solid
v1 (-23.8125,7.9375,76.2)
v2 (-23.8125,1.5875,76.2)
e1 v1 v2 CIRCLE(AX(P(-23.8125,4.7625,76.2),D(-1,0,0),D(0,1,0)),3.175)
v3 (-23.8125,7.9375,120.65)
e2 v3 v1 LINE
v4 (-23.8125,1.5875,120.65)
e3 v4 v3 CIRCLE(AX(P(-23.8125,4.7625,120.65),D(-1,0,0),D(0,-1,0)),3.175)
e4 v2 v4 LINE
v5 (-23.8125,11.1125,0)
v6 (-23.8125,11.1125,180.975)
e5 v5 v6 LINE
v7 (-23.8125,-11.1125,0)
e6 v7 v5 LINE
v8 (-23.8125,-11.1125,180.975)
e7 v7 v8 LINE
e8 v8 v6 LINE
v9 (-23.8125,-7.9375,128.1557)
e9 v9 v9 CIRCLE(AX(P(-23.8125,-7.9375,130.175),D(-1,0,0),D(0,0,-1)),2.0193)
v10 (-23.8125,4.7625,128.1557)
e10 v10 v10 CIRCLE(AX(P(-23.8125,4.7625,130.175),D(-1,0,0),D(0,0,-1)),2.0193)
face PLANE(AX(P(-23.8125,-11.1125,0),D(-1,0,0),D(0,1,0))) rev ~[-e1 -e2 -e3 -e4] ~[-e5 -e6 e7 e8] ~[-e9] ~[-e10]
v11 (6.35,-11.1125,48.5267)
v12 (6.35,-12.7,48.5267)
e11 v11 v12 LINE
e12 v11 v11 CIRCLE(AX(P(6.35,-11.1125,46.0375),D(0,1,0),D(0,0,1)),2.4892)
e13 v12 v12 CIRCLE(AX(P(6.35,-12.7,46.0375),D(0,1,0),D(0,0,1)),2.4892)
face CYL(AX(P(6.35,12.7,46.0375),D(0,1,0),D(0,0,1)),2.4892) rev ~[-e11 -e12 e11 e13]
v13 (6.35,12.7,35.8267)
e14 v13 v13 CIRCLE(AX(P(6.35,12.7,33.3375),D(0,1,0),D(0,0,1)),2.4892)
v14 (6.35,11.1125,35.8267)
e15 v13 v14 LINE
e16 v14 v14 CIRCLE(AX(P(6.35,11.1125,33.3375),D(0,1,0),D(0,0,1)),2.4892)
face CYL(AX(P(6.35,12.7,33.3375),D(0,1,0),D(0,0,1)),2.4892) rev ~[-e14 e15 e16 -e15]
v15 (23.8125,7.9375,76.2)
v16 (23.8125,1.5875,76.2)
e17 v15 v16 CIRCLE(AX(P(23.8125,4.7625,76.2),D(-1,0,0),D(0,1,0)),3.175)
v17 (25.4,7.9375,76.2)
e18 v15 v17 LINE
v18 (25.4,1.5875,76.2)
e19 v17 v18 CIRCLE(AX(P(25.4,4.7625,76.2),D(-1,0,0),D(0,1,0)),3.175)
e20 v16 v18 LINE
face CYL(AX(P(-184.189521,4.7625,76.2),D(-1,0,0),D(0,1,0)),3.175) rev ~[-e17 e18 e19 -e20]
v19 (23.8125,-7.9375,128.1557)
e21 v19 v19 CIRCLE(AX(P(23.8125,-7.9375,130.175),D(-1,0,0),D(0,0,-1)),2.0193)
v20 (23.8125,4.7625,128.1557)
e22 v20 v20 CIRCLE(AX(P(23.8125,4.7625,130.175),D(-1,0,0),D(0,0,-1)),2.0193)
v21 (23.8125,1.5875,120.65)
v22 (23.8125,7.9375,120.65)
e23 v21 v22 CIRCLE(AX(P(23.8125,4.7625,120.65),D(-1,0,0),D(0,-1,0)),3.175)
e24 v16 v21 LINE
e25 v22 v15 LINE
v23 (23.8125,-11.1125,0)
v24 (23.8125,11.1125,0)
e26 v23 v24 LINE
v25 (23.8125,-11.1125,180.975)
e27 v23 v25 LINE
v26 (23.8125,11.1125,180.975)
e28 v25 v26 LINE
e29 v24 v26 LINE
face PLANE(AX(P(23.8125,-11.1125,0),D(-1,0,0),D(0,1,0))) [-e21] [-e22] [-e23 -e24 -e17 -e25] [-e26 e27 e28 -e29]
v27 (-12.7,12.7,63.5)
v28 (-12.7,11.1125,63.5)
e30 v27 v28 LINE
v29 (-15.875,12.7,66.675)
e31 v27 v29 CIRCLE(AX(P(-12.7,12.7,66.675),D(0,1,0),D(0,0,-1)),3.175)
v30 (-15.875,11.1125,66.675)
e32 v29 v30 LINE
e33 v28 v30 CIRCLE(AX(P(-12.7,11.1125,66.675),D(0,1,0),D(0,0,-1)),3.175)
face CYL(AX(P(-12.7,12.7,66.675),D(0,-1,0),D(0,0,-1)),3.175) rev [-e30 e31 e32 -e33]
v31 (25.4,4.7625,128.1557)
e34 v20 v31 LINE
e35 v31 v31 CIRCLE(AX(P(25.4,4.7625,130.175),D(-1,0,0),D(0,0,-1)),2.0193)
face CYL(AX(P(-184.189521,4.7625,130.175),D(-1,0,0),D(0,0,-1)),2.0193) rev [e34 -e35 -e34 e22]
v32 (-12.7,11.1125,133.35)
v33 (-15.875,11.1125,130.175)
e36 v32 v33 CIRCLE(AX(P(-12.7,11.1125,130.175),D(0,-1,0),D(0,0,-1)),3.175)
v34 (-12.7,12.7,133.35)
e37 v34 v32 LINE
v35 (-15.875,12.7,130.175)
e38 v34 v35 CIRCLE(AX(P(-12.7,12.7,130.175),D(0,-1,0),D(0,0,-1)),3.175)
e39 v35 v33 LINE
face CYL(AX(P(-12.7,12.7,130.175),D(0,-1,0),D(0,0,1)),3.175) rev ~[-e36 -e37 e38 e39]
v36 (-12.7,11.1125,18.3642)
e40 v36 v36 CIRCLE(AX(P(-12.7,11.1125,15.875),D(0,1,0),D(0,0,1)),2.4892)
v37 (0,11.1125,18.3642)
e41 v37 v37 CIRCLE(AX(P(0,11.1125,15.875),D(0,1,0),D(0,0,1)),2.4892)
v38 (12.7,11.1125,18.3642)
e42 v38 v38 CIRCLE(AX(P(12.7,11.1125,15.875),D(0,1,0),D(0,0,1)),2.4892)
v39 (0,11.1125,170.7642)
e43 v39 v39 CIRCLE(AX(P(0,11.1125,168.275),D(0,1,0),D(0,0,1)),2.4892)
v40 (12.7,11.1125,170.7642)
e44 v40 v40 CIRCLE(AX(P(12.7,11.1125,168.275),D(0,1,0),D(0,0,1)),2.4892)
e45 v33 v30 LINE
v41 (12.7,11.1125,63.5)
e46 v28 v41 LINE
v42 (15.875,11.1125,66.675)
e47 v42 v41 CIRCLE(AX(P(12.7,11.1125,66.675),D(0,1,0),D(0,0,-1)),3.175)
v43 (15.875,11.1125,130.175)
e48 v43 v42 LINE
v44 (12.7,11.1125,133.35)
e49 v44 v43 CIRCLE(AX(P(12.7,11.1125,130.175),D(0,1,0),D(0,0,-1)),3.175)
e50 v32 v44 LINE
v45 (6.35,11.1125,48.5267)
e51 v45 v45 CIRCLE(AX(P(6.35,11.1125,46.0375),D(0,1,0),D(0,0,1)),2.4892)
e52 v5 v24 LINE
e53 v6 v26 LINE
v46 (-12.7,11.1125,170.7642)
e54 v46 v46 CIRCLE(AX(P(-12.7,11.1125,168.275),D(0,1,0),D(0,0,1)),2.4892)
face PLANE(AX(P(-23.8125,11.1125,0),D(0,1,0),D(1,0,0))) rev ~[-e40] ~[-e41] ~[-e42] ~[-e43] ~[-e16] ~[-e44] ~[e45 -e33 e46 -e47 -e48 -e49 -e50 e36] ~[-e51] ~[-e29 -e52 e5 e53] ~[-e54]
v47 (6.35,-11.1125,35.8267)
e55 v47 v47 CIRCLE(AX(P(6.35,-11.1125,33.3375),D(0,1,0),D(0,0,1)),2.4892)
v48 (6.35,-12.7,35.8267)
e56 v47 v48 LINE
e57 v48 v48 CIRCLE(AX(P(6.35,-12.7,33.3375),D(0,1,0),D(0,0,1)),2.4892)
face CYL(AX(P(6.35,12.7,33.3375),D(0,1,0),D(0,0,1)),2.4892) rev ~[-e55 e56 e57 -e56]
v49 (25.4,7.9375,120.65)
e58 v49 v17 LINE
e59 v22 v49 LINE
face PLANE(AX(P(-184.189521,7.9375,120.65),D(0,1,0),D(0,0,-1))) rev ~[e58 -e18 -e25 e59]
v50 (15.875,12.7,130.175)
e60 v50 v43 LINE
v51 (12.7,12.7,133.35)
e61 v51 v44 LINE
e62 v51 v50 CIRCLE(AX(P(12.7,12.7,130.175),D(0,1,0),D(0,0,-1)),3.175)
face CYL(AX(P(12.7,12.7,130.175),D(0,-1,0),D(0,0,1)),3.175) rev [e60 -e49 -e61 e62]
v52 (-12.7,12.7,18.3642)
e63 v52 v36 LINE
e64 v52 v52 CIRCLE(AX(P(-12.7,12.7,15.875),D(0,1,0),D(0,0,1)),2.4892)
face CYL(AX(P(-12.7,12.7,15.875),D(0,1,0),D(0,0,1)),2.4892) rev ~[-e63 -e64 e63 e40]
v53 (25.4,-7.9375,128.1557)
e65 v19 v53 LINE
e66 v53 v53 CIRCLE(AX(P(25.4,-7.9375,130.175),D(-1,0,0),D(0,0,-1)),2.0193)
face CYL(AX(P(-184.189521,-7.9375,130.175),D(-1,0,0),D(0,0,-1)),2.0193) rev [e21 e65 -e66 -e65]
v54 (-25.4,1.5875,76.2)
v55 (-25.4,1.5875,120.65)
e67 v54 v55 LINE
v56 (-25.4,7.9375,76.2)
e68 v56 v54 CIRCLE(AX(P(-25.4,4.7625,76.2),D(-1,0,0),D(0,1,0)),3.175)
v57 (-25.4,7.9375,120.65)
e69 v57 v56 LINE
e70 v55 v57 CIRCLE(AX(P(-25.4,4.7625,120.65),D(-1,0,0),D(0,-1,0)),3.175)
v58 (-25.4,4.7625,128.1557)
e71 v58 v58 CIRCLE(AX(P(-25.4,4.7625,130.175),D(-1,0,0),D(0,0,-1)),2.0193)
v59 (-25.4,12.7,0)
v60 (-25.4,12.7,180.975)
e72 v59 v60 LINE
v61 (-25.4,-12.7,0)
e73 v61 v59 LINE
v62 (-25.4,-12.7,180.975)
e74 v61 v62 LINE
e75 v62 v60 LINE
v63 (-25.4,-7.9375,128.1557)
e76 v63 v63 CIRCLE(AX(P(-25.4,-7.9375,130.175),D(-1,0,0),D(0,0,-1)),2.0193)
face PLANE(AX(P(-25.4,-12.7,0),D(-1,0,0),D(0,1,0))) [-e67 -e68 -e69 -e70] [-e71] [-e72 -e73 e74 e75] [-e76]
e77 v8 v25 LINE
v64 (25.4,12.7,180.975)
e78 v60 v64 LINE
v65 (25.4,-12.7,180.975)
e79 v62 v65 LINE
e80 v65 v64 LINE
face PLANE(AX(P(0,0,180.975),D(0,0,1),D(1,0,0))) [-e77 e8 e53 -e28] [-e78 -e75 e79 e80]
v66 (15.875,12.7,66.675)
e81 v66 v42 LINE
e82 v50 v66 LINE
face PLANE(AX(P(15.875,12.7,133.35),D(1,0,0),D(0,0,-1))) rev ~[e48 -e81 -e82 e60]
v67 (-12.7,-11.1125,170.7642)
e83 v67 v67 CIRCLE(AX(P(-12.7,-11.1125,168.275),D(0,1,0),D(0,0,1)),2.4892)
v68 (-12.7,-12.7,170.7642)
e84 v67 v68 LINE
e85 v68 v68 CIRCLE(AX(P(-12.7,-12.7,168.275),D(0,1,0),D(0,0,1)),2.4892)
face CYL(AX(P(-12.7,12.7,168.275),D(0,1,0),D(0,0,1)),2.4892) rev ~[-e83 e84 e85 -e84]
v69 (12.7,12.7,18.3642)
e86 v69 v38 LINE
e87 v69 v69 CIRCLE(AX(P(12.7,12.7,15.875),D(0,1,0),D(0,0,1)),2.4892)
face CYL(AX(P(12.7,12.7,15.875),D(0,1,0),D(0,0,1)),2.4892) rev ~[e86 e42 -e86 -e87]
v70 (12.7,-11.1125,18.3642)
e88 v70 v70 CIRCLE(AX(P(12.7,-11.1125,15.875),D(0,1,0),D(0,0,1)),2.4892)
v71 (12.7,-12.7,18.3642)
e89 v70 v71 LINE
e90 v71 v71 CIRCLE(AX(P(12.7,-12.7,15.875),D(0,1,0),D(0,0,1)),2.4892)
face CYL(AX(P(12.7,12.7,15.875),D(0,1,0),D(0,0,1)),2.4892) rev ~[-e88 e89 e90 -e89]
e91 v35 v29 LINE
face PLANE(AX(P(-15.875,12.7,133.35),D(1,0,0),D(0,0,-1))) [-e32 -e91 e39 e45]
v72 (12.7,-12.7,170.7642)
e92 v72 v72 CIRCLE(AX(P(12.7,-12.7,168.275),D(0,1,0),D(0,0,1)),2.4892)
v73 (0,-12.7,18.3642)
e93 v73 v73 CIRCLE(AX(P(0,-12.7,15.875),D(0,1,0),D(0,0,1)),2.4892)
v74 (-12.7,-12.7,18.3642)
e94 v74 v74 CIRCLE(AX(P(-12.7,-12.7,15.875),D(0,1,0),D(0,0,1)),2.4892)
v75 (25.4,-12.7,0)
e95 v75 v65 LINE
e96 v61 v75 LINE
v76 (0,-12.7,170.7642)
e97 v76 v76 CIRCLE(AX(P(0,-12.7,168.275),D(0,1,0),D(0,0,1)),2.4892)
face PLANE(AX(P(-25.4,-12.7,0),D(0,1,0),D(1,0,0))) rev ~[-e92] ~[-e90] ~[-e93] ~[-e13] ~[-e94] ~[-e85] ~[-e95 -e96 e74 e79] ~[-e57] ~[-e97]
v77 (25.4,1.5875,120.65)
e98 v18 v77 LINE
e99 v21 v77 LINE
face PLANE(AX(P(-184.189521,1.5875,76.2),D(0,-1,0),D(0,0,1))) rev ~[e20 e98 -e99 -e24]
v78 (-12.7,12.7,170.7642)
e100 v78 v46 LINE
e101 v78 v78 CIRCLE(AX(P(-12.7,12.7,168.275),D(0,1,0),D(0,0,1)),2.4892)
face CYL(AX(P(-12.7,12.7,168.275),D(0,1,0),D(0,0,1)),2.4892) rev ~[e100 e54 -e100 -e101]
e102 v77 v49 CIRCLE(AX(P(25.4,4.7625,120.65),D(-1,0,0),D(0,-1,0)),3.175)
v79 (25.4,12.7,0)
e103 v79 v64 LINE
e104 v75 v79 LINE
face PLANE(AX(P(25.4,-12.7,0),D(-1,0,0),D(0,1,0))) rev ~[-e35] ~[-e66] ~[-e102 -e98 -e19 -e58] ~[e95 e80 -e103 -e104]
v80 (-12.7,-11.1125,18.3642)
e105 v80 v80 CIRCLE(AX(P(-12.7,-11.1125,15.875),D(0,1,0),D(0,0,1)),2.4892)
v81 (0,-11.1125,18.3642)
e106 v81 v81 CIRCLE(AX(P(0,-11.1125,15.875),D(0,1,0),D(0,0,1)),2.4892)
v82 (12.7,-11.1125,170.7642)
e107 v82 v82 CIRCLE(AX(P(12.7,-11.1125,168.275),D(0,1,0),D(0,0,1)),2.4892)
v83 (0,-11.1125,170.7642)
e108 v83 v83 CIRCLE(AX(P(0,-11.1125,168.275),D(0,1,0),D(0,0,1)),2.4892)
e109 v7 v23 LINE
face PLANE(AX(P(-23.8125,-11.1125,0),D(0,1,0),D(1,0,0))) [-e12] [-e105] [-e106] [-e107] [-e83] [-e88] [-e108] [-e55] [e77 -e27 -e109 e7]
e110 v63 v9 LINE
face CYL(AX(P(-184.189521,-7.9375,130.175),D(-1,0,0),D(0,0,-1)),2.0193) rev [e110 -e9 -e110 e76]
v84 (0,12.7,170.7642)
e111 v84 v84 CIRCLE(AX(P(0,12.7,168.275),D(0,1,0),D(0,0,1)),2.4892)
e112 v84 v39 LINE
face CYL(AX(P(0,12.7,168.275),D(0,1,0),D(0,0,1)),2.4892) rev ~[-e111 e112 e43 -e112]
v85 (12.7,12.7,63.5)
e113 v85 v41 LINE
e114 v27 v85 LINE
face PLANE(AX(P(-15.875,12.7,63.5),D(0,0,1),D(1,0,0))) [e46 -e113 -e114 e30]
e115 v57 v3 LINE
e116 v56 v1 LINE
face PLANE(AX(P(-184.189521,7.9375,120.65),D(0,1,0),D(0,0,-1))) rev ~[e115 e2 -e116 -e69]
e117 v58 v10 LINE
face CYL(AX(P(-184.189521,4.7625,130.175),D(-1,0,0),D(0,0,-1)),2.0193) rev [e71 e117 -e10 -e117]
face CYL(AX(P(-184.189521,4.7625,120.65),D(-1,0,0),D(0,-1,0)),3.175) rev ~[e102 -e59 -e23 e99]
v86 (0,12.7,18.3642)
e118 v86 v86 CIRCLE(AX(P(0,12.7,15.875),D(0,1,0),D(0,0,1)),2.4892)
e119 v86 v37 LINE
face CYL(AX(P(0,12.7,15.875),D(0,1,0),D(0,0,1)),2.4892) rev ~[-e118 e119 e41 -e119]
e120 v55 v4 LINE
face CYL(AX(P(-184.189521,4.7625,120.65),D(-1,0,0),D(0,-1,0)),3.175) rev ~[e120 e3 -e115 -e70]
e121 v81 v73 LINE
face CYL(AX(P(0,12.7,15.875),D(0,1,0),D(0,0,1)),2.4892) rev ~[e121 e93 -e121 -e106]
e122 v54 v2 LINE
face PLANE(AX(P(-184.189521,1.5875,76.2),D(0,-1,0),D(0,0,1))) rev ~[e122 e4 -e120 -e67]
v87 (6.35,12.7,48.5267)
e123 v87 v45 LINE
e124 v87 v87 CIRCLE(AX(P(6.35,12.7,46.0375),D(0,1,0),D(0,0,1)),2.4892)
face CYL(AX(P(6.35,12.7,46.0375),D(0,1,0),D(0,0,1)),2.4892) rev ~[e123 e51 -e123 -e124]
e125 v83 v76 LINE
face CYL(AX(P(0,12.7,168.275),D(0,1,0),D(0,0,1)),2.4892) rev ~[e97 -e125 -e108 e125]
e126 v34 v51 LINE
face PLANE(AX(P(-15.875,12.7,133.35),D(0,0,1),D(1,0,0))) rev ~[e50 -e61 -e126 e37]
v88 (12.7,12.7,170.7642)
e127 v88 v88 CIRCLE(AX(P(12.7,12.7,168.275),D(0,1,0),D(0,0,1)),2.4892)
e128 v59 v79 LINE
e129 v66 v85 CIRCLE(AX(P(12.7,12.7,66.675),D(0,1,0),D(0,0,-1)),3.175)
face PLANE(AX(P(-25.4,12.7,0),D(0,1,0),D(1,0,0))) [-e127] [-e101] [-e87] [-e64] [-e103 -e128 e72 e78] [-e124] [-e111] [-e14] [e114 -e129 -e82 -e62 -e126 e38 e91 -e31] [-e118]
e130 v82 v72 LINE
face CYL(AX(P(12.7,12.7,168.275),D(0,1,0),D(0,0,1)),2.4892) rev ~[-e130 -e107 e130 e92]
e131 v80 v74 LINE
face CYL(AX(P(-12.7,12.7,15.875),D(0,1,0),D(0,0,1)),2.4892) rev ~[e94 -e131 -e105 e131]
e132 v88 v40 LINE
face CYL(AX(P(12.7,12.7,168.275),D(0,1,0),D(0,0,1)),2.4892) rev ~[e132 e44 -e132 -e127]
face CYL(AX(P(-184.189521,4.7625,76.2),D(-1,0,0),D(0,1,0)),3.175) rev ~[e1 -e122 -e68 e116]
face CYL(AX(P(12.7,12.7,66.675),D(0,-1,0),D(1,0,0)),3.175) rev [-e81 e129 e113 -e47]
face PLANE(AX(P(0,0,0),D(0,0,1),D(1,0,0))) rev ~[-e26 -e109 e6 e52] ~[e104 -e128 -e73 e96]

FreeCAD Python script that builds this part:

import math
import FreeCAD as App
import Part
import Sketcher

V = App.Vector
Q = App.Units.Quantity


def edges_at(feature, points):
    """Names of the edges that pass closest to the given points."""
    edges = feature.Shape.Edges
    near = lambda p: min(range(len(edges)), key=lambda i: edges[i].distToShape(Part.Vertex(*p))[0])
    return sorted({f"Edge{near(p) + 1}" for p in points})


def add_polygon(sketch, points):
    """Adds a closed chain of lines whose ends are joined by coincident constraints."""
    first, n = sketch.GeometryCount, len(points)
    for a, b in zip(points, points[1:] + points[:1]):
        sketch.addGeometry(Part.LineSegment(App.Vector(*a, 0), App.Vector(*b, 0)), False)
    for i in range(n):
        sketch.addConstraint(Sketcher.Constraint("Coincident", first + i, 2, first + (i + 1) % n, 1))

doc = App.newDocument("Part")
body = doc.addObject("PartDesign::Body", "Body")

# Sketch on XY plane
sketch1 = body.newObject("Sketcher::SketchObject", "Sketch")
sketch1.AttachmentSupport = (doc.getObject("XY_Plane"), [""])
sketch1.MapMode = "FlatFace"
add_polygon(sketch1, [(-25.4, 12.7), (-25.4, -12.7), (25.4, -12.7), (25.4, 12.7)])  # lines 0-3
add_polygon(sketch1, [(23.8125, -11.1125), (-23.8125, -11.1125), (-23.8125, 11.1125), (23.8125, 11.1125)])  # lines 4-7
sketch1.addConstraint(Sketcher.Constraint("Vertical", 0))
sketch1.addConstraint(Sketcher.Constraint("Horizontal", 1))
sketch1.addConstraint(Sketcher.Constraint("Vertical", 2))
sketch1.addConstraint(Sketcher.Constraint("Horizontal", 3))
sketch1.addConstraint(Sketcher.Constraint("Horizontal", 4))
sketch1.addConstraint(Sketcher.Constraint("Vertical", 5))
sketch1.addConstraint(Sketcher.Constraint("Horizontal", 6))
sketch1.addConstraint(Sketcher.Constraint("Vertical", 7))
sketch1.addConstraint(Sketcher.Constraint("Symmetric", 0, 2, 2, 2, -1, 1))
sketch1.addConstraint(Sketcher.Constraint("Symmetric", 4, 2, 6, 2, -1, 1))
sketch1.addConstraint(Sketcher.Constraint("DistanceX", 1, 1, 1, 2, Q("2 in")))
sketch1.addConstraint(Sketcher.Constraint("DistanceY", 0, 2, 0, 1, Q("1 in")))
sketch1.addConstraint(Sketcher.Constraint("DistanceX", 4, 2, 4, 1, Q("1.875 in")))
sketch1.addConstraint(Sketcher.Constraint("DistanceY", 5, 1, 5, 2, Q("0.875 in")))
pad1 = body.newObject("PartDesign::Pad", "Pad")
pad1.Profile = sketch1
pad1.Length = Q("7.125 in")

# Sketch on XZ plane
sketch2 = body.newObject("Sketcher::SketchObject", "Sketch001")
sketch2.AttachmentSupport = (doc.getObject("XZ_Plane"), [""])
sketch2.MapMode = "FlatFace"
sketch2.AttachmentOffset = App.Placement(V(0, 0, -0.5 * 25.4), App.Rotation())
sketch2.addGeometry(Part.Circle(V(-12.7, 15.875, 0), V(0, 0, 1), 2.4892), False)
sketch2.addGeometry(Part.Circle(V(0, 15.875, 0), V(0, 0, 1), 2.4892), False)
sketch2.addGeometry(Part.Circle(V(12.7, 15.875, 0), V(0, 0, 1), 2.4892), False)
sketch2.addGeometry(Part.Circle(V(-12.7, 168.275, 0), V(0, 0, 1), 2.4892), False)
sketch2.addGeometry(Part.Circle(V(0, 168.275, 0), V(0, 0, 1), 2.4892), False)
sketch2.addGeometry(Part.Circle(V(12.7, 168.275, 0), V(0, 0, 1), 2.4892), False)
sketch2.addGeometry(Part.Circle(V(6.35, 33.3375, 0), V(0, 0, 1), 2.4892), False)
sketch2.addGeometry(Part.Circle(V(6.35, 46.0375, 0), V(0, 0, 1), 2.4892), False)
sketch2.addConstraint(Sketcher.Constraint("Equal", 0, 1))
sketch2.addConstraint(Sketcher.Constraint("Equal", 1, 2))
sketch2.addConstraint(Sketcher.Constraint("Equal", 2, 3))
sketch2.addConstraint(Sketcher.Constraint("Equal", 3, 4))
sketch2.addConstraint(Sketcher.Constraint("Equal", 4, 5))
sketch2.addConstraint(Sketcher.Constraint("Equal", 5, 6))
sketch2.addConstraint(Sketcher.Constraint("Equal", 6, 7))
sketch2.addConstraint(Sketcher.Constraint("Symmetric", 0, 3, 2, 3, -2))
sketch2.addConstraint(Sketcher.Constraint("Symmetric", 3, 3, 5, 3, -2))
sketch2.addConstraint(Sketcher.Constraint("PointOnObject", 1, 3, -2))
sketch2.addConstraint(Sketcher.Constraint("PointOnObject", 4, 3, -2))
sketch2.addConstraint(Sketcher.Constraint("Horizontal", 0, 3, 1, 3))
sketch2.addConstraint(Sketcher.Constraint("Horizontal", 3, 3, 4, 3))
sketch2.addConstraint(Sketcher.Constraint("Vertical", 0, 3, 3, 3))
sketch2.addConstraint(Sketcher.Constraint("Vertical", 6, 3, 7, 3))
sketch2.addConstraint(Sketcher.Constraint("Diameter", 0, Q("0.196 in")))
sketch2.addConstraint(Sketcher.Constraint("DistanceX", 0, 3, 2, 3, Q("1 in")))
sketch2.addConstraint(Sketcher.Constraint("DistanceY", 0, 3, 3, 3, Q("6 in")))
sketch2.addConstraint(Sketcher.Constraint("DistanceY", 6, 3, 7, 3, Q("0.5 in")))
sketch2.addConstraint(Sketcher.Constraint("DistanceX", -1, 1, 6, 3, Q("0.25 in")))
sketch2.addConstraint(Sketcher.Constraint("DistanceY", -1, 1, 0, 3, Q("0.625 in")))
sketch2.addConstraint(Sketcher.Constraint("DistanceY", -1, 1, 6, 3, Q("1.3125 in")))
pocket1 = body.newObject("PartDesign::Pocket", "Pocket")
pocket1.Profile = sketch2
pocket1.Type = "ThroughAll"
pocket1.Reversed = True

# Sketch on XZ plane
sketch3 = body.newObject("Sketcher::SketchObject", "Sketch002")
sketch3.AttachmentSupport = (doc.getObject("XZ_Plane"), [""])
sketch3.MapMode = "FlatFace"
sketch3.AttachmentOffset = App.Placement(V(0, 0, -0.5 * 25.4), App.Rotation())
add_polygon(sketch3, [(-15.875, 63.5), (-15.875, 133.35), (15.875, 133.35), (15.875, 63.5)])  # lines 0-3
sketch3.addConstraint(Sketcher.Constraint("Vertical", 0))
sketch3.addConstraint(Sketcher.Constraint("Horizontal", 1))
sketch3.addConstraint(Sketcher.Constraint("Vertical", 2))
sketch3.addConstraint(Sketcher.Constraint("Horizontal", 3))
sketch3.addConstraint(Sketcher.Constraint("DistanceX", 1, 1, 1, 2, Q("1.25 in")))
sketch3.addConstraint(Sketcher.Constraint("DistanceY", 0, 1, 0, 2, Q("2.75 in")))
sketch3.addConstraint(Sketcher.Constraint("DistanceY", -1, 1, 2, 2, Q("2.5 in")))
sketch3.addConstraint(Sketcher.Constraint("DistanceX", 0, 2, -1, 1, Q("0.625 in")))
pocket2 = body.newObject("PartDesign::Pocket", "Pocket001")
pocket2.Profile = sketch3
pocket2.Length = Q("0.9375 in")
pocket2.Reversed = True
doc.recompute()

fillet = body.newObject("PartDesign::Fillet", "Fillet")
fillet.Base = (pocket2, edges_at(pocket2, [
    (-15.875, 11.906, 133.35),
    (-15.875, 11.906, 63.5),
    (15.875, 11.906, 63.5),
    (15.875, 11.906, 133.35),
]))
fillet.Radius = Q("0.125 in")

# Sketch on YZ plane
sketch4 = body.newObject("Sketcher::SketchObject", "Sketch003")
sketch4.AttachmentSupport = (doc.getObject("YZ_Plane"), [""])
sketch4.MapMode = "FlatFace"
sketch4.addGeometry(Part.Circle(V(4.7625, 130.175, 0), V(0, 0, 1), 2.0193), False)
sketch4.addGeometry(Part.Circle(V(-7.9375, 130.175, 0), V(0, 0, 1), 2.0193), False)
sketch4.addGeometry(Part.LineSegment(V(7.9375, 76.2, 0), V(7.9375, 120.65, 0)), False)
sketch4.addGeometry(Part.ArcOfCircle(Part.Circle(V(4.7625, 120.65, 0), V(0, 0, 1), 3.175), math.radians(0), math.radians(180)), False)
sketch4.addGeometry(Part.LineSegment(V(1.5875, 120.65, 0), V(1.5875, 76.2, 0)), False)
sketch4.addGeometry(Part.ArcOfCircle(Part.Circle(V(4.7625, 76.2, 0), V(0, 0, 1), 3.175), math.radians(180), math.radians(360)), False)
sketch4.addConstraint(Sketcher.Constraint("Tangent", 2, 2, 3, 1))
sketch4.addConstraint(Sketcher.Constraint("Tangent", 3, 2, 4, 1))
sketch4.addConstraint(Sketcher.Constraint("Tangent", 4, 2, 5, 1))
sketch4.addConstraint(Sketcher.Constraint("Tangent", 5, 2, 2, 1))
sketch4.addConstraint(Sketcher.Constraint("Vertical", 2))
sketch4.addConstraint(Sketcher.Constraint("Vertical", 4))
sketch4.addConstraint(Sketcher.Constraint("Equal", 0, 1))
sketch4.addConstraint(Sketcher.Constraint("Horizontal", 0, 3, 1, 3))
sketch4.addConstraint(Sketcher.Constraint("Vertical", 0, 3, 3, 3))
sketch4.addConstraint(Sketcher.Constraint("Diameter", 0, Q("0.159 in")))
sketch4.addConstraint(Sketcher.Constraint("DistanceY", -1, 1, 5, 3, Q("3 in")))
sketch4.addConstraint(Sketcher.Constraint("Radius", 3, Q("0.125 in")))
sketch4.addConstraint(Sketcher.Constraint("DistanceY", 2, 1, 2, 2, Q("1.75 in")))
sketch4.addConstraint(Sketcher.Constraint("DistanceX", 1, 3, 0, 3, Q("0.5 in")))
sketch4.addConstraint(Sketcher.Constraint("DistanceX", -1, 1, 0, 3, Q("0.1875 in")))
sketch4.addConstraint(Sketcher.Constraint("DistanceY", -1, 1, 0, 3, Q("5.125 in")))
pocket3 = body.newObject("PartDesign::Pocket", "Pocket002")
pocket3.Profile = sketch4
pocket3.Type = "ThroughAll"
pocket3.Midplane = True

doc.recompute()
